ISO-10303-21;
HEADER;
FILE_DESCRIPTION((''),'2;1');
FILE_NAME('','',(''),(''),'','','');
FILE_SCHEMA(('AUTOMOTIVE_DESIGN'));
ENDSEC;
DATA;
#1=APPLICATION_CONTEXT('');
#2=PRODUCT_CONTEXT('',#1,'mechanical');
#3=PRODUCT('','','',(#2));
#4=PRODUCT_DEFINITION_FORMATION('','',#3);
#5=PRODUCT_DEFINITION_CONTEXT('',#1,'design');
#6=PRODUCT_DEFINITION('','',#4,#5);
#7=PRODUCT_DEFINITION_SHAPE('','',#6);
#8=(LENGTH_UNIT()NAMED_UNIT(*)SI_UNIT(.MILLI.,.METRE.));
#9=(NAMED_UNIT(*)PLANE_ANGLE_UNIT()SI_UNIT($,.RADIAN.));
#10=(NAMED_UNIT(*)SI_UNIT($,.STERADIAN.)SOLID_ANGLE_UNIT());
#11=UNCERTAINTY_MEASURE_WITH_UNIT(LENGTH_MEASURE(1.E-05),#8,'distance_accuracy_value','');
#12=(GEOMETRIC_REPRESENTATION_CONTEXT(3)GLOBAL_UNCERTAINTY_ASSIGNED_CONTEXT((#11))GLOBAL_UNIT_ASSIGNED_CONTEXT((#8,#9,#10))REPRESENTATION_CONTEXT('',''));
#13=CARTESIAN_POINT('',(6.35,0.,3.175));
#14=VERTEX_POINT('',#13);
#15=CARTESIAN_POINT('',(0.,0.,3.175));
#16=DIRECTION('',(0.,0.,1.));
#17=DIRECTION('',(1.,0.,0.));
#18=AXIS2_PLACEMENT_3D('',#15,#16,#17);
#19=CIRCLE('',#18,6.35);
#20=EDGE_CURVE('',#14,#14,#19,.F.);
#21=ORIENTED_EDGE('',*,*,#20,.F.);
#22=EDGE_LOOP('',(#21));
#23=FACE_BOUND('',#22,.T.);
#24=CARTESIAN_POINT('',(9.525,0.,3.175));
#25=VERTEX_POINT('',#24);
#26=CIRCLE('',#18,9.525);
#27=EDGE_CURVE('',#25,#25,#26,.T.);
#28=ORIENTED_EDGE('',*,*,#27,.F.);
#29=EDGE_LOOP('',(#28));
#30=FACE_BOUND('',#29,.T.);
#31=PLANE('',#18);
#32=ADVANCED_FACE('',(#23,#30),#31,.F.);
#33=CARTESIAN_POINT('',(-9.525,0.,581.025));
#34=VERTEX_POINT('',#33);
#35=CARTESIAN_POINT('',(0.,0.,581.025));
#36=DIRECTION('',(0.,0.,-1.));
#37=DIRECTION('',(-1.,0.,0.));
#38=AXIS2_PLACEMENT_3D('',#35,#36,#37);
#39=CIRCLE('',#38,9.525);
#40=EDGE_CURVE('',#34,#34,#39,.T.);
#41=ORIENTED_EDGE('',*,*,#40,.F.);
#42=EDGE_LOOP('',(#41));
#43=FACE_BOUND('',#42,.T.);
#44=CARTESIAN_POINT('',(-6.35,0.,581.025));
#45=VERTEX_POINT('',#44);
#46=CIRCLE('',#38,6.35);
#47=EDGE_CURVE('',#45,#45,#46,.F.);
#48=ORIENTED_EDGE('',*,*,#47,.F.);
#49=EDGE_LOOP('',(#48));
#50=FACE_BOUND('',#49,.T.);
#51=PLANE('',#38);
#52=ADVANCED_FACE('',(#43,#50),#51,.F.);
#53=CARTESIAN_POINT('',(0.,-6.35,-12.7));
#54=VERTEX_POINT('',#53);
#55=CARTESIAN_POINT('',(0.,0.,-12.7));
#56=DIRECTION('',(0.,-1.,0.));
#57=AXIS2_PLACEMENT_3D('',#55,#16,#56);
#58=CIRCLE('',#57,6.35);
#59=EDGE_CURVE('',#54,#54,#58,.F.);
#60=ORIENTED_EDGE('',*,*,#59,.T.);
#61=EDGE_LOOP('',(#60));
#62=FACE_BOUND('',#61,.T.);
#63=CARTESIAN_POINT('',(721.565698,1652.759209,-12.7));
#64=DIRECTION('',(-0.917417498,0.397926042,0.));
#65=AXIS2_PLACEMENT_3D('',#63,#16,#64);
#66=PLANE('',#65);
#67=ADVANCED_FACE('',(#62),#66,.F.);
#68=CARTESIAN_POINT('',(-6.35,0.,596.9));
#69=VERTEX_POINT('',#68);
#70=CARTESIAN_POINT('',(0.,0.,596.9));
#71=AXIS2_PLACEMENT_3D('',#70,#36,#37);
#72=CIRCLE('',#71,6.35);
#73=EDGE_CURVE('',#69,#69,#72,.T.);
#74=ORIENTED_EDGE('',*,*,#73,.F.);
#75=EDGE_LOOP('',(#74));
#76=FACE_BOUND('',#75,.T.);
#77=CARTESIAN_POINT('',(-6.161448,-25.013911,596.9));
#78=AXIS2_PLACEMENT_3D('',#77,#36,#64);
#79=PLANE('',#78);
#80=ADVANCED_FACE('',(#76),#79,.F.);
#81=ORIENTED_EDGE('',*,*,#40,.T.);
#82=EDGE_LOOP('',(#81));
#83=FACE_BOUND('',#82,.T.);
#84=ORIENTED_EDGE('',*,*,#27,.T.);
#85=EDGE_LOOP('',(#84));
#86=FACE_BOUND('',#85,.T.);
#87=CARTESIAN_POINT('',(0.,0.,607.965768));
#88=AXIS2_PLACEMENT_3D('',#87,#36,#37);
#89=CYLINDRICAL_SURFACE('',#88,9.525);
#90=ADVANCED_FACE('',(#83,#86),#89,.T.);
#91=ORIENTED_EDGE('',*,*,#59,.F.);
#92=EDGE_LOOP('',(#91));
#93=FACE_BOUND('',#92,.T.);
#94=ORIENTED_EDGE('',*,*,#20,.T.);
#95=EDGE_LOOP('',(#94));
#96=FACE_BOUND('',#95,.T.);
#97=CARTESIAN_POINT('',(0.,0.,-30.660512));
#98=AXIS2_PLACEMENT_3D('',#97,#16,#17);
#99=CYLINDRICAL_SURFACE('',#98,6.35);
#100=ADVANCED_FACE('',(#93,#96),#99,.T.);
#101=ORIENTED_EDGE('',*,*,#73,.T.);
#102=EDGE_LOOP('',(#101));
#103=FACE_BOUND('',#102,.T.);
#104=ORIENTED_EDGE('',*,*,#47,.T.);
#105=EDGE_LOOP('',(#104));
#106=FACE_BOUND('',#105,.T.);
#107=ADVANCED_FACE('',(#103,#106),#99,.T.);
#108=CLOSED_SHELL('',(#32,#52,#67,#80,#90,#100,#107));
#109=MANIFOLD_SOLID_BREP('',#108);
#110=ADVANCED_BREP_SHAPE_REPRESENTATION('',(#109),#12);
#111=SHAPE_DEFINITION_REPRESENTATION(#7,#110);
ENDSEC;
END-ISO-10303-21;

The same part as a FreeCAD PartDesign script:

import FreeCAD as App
import Part
import Sketcher
Q = App.Units.Quantity

doc = App.newDocument("Part")
body = doc.addObject("PartDesign::Body", "Body")

# Sketch on XY plane
sketch1 = body.newObject("Sketcher::SketchObject", "Sketch")
sketch1.AttachmentSupport = (doc.getObject("XY_Plane"), [""])
sketch1.MapMode = "FlatFace"
sketch1.addGeometry(Part.Circle(App.Vector(0, 0, 0), App.Vector(0, 0, 1), 6.35), False)
sketch1.addConstraint([
    Sketcher.Constraint("Coincident", 0, 3, -1, 1),
    Sketcher.Constraint("Diameter", 0, Q("0.5 in")),
])
pad1 = body.newObject("PartDesign::Pad", "Pad")
pad1.Profile = sketch1
pad1.Type = "TwoLengths"
pad1.Length = Q("23.5 in")
pad1.Length2 = Q("0.5 in")

# Sketch on XY plane
sketch2 = body.newObject("Sketcher::SketchObject", "Sketch001")
sketch2.AttachmentSupport = (doc.getObject("XY_Plane"), [""])
sketch2.MapMode = "FlatFace"
sketch2.AttachmentOffset = App.Placement(App.Vector(0, 0, 0.125 * 25.4), App.Rotation())
sketch2.addGeometry(Part.Circle(App.Vector(0, 0, 0), App.Vector(0, 0, 1), 9.525), False)
sketch2.addConstraint([
    Sketcher.Constraint("Coincident", 0, 3, -1, 1),
    Sketcher.Constraint("Diameter", 0, Q("0.75 in")),
])
pad2 = body.newObject("PartDesign::Pad", "Pad001")
pad2.Profile = sketch2
pad2.Length = Q("22.75 in")

doc.recompute()
